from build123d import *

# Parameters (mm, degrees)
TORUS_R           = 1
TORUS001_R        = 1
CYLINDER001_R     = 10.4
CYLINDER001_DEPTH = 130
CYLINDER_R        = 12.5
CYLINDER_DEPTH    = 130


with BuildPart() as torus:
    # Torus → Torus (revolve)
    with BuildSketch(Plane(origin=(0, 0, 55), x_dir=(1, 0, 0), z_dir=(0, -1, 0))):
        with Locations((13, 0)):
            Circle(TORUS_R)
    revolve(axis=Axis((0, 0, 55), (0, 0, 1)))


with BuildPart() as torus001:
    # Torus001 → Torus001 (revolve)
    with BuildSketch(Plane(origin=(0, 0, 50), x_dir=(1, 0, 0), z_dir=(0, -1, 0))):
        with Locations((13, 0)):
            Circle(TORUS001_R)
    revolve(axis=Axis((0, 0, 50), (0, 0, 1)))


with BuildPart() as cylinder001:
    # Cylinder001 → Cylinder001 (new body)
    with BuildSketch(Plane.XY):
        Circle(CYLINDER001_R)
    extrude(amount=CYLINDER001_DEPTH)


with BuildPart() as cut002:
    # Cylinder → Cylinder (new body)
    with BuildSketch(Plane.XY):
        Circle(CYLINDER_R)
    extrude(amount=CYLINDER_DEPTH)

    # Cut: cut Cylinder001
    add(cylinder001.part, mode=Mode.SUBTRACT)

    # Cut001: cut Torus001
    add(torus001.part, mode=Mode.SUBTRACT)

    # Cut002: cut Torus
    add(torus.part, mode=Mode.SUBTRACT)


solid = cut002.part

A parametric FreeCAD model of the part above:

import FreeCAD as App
import Part
import Sketcher
from FreeCAD import Vector
Q = App.Units.Quantity

doc = App.newDocument("Part")
params = doc.addObject("Spreadsheet::Sheet", "Params")
for row, (alias, value) in enumerate([
    ("sketch1_diameter", "2 mm"),
    ("revolution_angle", "360 deg"),
    ("sketch2_diameter", "2 mm"),
    ("revolution2_angle", "360 deg"),
    ("sketch3_diameter", "20.8 mm"),
    ("pad1_length", "130 mm"),
    ("sketch4_diameter", "25 mm"),
    ("pad2_length", "130 mm"),
], start=1):
    params.set(f"A{row}", alias)
    params.set(f"B{row}", "=" + value)
    params.setAlias(f"B{row}", alias)

body = doc.addObject("PartDesign::Body", "Body")

# Sketch on XZ plane
sketch1 = doc.addObject("Sketcher::SketchObject", "Sketch")
body.addObject(sketch1)
sketch1.AttachmentSupport = (doc.XZ_Plane, [""])
sketch1.MapMode = "FlatFace"
sketch1.addGeometry(Part.Circle(Vector(13, 55, 0), Vector(0, 0, 1), 1), False)
sketch1.addConstraint([
    Sketcher.Constraint("Diameter", 0, Q("2 mm")),
    Sketcher.Constraint("DistanceX", -1, 1, 0, 3, Q("13 mm")),
    Sketcher.Constraint("DistanceY", -1, 1, 0, 3, Q("55 mm")),
])
sketch1.setExpression("Constraints[0]", "Params.sketch1_diameter")
revolution = doc.addObject("PartDesign::Revolution", "Revolution")
body.addObject(revolution)
revolution.Profile = sketch1
revolution.ReferenceAxis = (sketch1, ["V_Axis"])
revolution.setExpression("Angle", "Params.revolution_angle")
body2 = doc.addObject("PartDesign::Body", "Body001")

# Sketch on XZ plane
sketch2 = doc.addObject("Sketcher::SketchObject", "Sketch001")
body2.addObject(sketch2)
sketch2.AttachmentSupport = (doc.getObject("XZ_Plane001"), [""])
sketch2.MapMode = "FlatFace"
sketch2.addGeometry(Part.Circle(Vector(13, 50, 0), Vector(0, 0, 1), 1), False)
sketch2.addConstraint([
    Sketcher.Constraint("Diameter", 0, Q("2 mm")),
    Sketcher.Constraint("DistanceX", -1, 1, 0, 3, Q("13 mm")),
    Sketcher.Constraint("DistanceY", -1, 1, 0, 3, Q("50 mm")),
])
sketch2.setExpression("Constraints[0]", "Params.sketch2_diameter")
revolution2 = doc.addObject("PartDesign::Revolution", "Revolution001")
body2.addObject(revolution2)
revolution2.Profile = sketch2
revolution2.ReferenceAxis = (sketch2, ["V_Axis"])
revolution2.setExpression("Angle", "Params.revolution2_angle")
body3 = doc.addObject("PartDesign::Body", "Body002")

# Sketch on XY plane
sketch3 = doc.addObject("Sketcher::SketchObject", "Sketch002")
body3.addObject(sketch3)
sketch3.AttachmentSupport = (doc.getObject("XY_Plane002"), [""])
sketch3.MapMode = "FlatFace"
sketch3.addGeometry(Part.Circle(Vector(0, 0, 0), Vector(0, 0, 1), 10), False)
sketch3.addConstraint([
    Sketcher.Constraint("Coincident", 0, 3, -1, 1),
    Sketcher.Constraint("Diameter", 0, Q("20.8 mm")),
])
sketch3.setExpression("Constraints[1]", "Params.sketch3_diameter")
pad1 = doc.addObject("PartDesign::Pad", "Pad")
body3.addObject(pad1)
pad1.Profile = sketch3
pad1.setExpression("Length", "Params.pad1_length")
body4 = doc.addObject("PartDesign::Body", "Body003")

# Sketch on XY plane
sketch4 = doc.addObject("Sketcher::SketchObject", "Sketch003")
body4.addObject(sketch4)
sketch4.AttachmentSupport = (doc.getObject("XY_Plane003"), [""])
sketch4.MapMode = "FlatFace"
sketch4.addGeometry(Part.Circle(Vector(0, 0, 0), Vector(0, 0, 1), 12), False)
sketch4.addConstraint([
    Sketcher.Constraint("Coincident", 0, 3, -1, 1),
    Sketcher.Constraint("Diameter", 0, Q("25 mm")),
])
sketch4.setExpression("Constraints[1]", "Params.sketch4_diameter")
pad2 = doc.addObject("PartDesign::Pad", "Pad001")
body4.addObject(pad2)
pad2.Profile = sketch4
pad2.setExpression("Length", "Params.pad2_length")
doc.recompute()

boolean = doc.addObject("PartDesign::Boolean", "Boolean")
body4.addObject(boolean)
boolean.Type = "Cut"
boolean.addObjects([body3])
doc.recompute()

boolean2 = doc.addObject("PartDesign::Boolean", "Boolean001")
body4.addObject(boolean2)
boolean2.Type = "Cut"
boolean2.addObjects([body2])
doc.recompute()

boolean3 = doc.addObject("PartDesign::Boolean", "Boolean002")
body4.addObject(boolean3)
boolean3.Type = "Cut"
boolean3.addObjects([body])

doc.recompute()
